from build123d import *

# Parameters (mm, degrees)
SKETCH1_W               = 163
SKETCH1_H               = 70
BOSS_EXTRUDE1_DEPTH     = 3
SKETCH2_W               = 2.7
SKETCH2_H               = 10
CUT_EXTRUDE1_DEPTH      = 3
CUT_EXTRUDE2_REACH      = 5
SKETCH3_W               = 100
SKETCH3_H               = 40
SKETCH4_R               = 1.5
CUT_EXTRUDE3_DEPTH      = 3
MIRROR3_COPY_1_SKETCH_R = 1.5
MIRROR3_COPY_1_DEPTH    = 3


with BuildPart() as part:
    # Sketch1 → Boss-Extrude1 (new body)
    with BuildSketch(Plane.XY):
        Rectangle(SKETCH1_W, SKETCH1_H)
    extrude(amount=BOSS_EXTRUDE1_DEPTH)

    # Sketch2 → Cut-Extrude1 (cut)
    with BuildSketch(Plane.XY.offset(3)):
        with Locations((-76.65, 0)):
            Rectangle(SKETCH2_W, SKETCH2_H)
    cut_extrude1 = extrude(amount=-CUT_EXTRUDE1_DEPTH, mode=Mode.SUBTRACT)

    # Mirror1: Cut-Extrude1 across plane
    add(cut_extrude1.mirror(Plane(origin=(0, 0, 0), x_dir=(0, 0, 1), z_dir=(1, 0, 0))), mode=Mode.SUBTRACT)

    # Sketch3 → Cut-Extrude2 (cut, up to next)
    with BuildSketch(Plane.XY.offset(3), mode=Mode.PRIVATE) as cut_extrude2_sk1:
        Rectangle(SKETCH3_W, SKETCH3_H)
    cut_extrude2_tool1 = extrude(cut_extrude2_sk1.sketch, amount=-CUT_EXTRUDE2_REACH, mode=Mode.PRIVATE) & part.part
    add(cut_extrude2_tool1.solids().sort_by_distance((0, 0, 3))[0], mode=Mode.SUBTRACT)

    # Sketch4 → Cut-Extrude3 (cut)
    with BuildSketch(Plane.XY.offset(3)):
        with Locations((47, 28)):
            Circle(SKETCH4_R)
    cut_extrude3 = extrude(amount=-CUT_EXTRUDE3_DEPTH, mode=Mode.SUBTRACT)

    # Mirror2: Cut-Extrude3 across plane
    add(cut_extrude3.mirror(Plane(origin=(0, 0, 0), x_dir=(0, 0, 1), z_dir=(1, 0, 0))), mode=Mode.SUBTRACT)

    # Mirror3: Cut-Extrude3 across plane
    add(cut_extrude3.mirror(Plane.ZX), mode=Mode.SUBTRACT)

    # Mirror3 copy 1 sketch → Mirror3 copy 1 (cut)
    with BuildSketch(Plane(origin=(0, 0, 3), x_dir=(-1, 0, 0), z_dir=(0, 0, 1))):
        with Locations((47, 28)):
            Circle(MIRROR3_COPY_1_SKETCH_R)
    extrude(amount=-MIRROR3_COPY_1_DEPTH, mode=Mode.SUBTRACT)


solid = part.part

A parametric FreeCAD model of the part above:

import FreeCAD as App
import Part
import Sketcher
Q = App.Units.Quantity

doc = App.newDocument("Part")
params = doc.addObject("Spreadsheet::Sheet", "Params")
for row, (alias, value) in enumerate([
    ("sketch1_width", "163 mm"),
    ("sketch1_height", "70 mm"),
    ("pad1_length", "3 mm"),
    ("sketch2_height", "10 mm"),
    ("sketch2_width", "2.7 mm"),
    ("pocket1_length", "3 mm"),
    ("sketch3_width", "100 mm"),
    ("sketch3_height", "40 mm"),
    ("sketch4_diameter", "3 mm"),
    ("pocket3_length", "3 mm"),
    ("sketch5_diameter", "3 mm"),
    ("pocket4_length", "3 mm"),
], start=1):
    params.set(f"A{row}", alias)
    params.set(f"B{row}", "=" + value)
    params.setAlias(f"B{row}", alias)

body = doc.addObject("PartDesign::Body", "Body")

# Sketch on XY plane
sketch1 = body.newObject("Sketcher::SketchObject", "Sketch")
sketch1.AttachmentSupport = (doc.getObject("XY_Plane"), [""])
sketch1.MapMode = "FlatFace"
sketch1.addGeometry([
    Part.LineSegment(App.Vector(-82, 35, 0), App.Vector(-82, -35, 0)),
    Part.LineSegment(App.Vector(-82, -35, 0), App.Vector(82, -35, 0)),
    Part.LineSegment(App.Vector(82, -35, 0), App.Vector(82, 35, 0)),
    Part.LineSegment(App.Vector(82, 35, 0), App.Vector(-82, 35, 0)),
], False)
sketch1.addConstraint([
    Sketcher.Constraint("Coincident", 0, 2, 1, 1),
    Sketcher.Constraint("Coincident", 1, 2, 2, 1),
    Sketcher.Constraint("Coincident", 2, 2, 3, 1),
    Sketcher.Constraint("Coincident", 3, 2, 0, 1),
    Sketcher.Constraint("Vertical", 0),
    Sketcher.Constraint("Horizontal", 1),
    Sketcher.Constraint("Vertical", 2),
    Sketcher.Constraint("Horizontal", 3),
    Sketcher.Constraint("Symmetric", 0, 2, 2, 2, -1, 1),
    Sketcher.Constraint("DistanceX", 1, 1, 1, 2, Q("163 mm")),
    Sketcher.Constraint("DistanceY", 0, 2, 0, 1, Q("70 mm")),
])
sketch1.setExpression("Constraints[9]", "Params.sketch1_width")
sketch1.setExpression("Constraints[10]", "Params.sketch1_height")
pad1 = body.newObject("PartDesign::Pad", "Pad")
pad1.Profile = sketch1
pad1.setExpression("Length", "Params.pad1_length")

# Sketch on XY plane
sketch2 = body.newObject("Sketcher::SketchObject", "Sketch001")
sketch2.AttachmentSupport = (doc.getObject("XY_Plane"), [""])
sketch2.MapMode = "FlatFace"
sketch2.AttachmentOffset = App.Placement(App.Vector(0, 0, 3), App.Rotation())
sketch2.addGeometry([
    Part.LineSegment(App.Vector(-78, 5, 0), App.Vector(-78, -5, 0)),
    Part.LineSegment(App.Vector(-78, -5, 0), App.Vector(-75.3, -5, 0)),
    Part.LineSegment(App.Vector(-75.3, -5, 0), App.Vector(-75.3, 5, 0)),
    Part.LineSegment(App.Vector(-75.3, 5, 0), App.Vector(-78, 5, 0)),
], False)
sketch2.addConstraint([
    Sketcher.Constraint("Coincident", 0, 2, 1, 1),
    Sketcher.Constraint("Coincident", 1, 2, 2, 1),
    Sketcher.Constraint("Coincident", 2, 2, 3, 1),
    Sketcher.Constraint("Coincident", 3, 2, 0, 1),
    Sketcher.Constraint("Vertical", 0),
    Sketcher.Constraint("Horizontal", 1),
    Sketcher.Constraint("Vertical", 2),
    Sketcher.Constraint("Horizontal", 3),
    Sketcher.Constraint("DistanceY", 0, 2, 0, 1, Q("10 mm")),
    Sketcher.Constraint("DistanceX", 1, 1, 1, 2, Q("2.7 mm")),
    Sketcher.Constraint("DistanceX", 0, 2, -1, 1, Q("78 mm")),
    Sketcher.Constraint("DistanceY", 0, 2, -1, 1, Q("5 mm")),
])
sketch2.setExpression("Constraints[8]", "Params.sketch2_height")
sketch2.setExpression("Constraints[9]", "Params.sketch2_width")
pocket1 = body.newObject("PartDesign::Pocket", "Pocket")
pocket1.Profile = sketch2
pocket1.setExpression("Length", "Params.pocket1_length")
doc.recompute()

mirrored = body.newObject("PartDesign::Mirrored", "Mirrored")
mirrored.Originals = [pocket1]
mirrored.MirrorPlane = (doc.getObject("YZ_Plane"), [""])
body.Tip = mirrored

# Sketch on XY plane
sketch3 = body.newObject("Sketcher::SketchObject", "Sketch002")
sketch3.AttachmentSupport = (doc.getObject("XY_Plane"), [""])
sketch3.MapMode = "FlatFace"
sketch3.AttachmentOffset = App.Placement(App.Vector(0, 0, 3), App.Rotation())
sketch3.addGeometry([
    Part.LineSegment(App.Vector(-50, 20, 0), App.Vector(-50, -20, 0)),
    Part.LineSegment(App.Vector(-50, -20, 0), App.Vector(50, -20, 0)),
    Part.LineSegment(App.Vector(50, -20, 0), App.Vector(50, 20, 0)),
    Part.LineSegment(App.Vector(50, 20, 0), App.Vector(-50, 20, 0)),
], False)
sketch3.addConstraint([
    Sketcher.Constraint("Coincident", 0, 2, 1, 1),
    Sketcher.Constraint("Coincident", 1, 2, 2, 1),
    Sketcher.Constraint("Coincident", 2, 2, 3, 1),
    Sketcher.Constraint("Coincident", 3, 2, 0, 1),
    Sketcher.Constraint("Vertical", 0),
    Sketcher.Constraint("Horizontal", 1),
    Sketcher.Constraint("Vertical", 2),
    Sketcher.Constraint("Horizontal", 3),
    Sketcher.Constraint("Symmetric", 0, 2, 2, 2, -1, 1),
    Sketcher.Constraint("DistanceX", 1, 1, 1, 2, Q("100 mm")),
    Sketcher.Constraint("DistanceY", 0, 2, 0, 1, Q("40 mm")),
])
sketch3.setExpression("Constraints[9]", "Params.sketch3_width")
sketch3.setExpression("Constraints[10]", "Params.sketch3_height")
pocket2 = body.newObject("PartDesign::Pocket", "Pocket001")
pocket2.Profile = sketch3
pocket2.Type = "UpToFirst"

# Sketch on XY plane
sketch4 = body.newObject("Sketcher::SketchObject", "Sketch003")
sketch4.AttachmentSupport = (doc.getObject("XY_Plane"), [""])
sketch4.MapMode = "FlatFace"
sketch4.AttachmentOffset = App.Placement(App.Vector(0, 0, 3), App.Rotation())
sketch4.addGeometry(Part.Circle(App.Vector(47, 28, 0), App.Vector(0, 0, 1), 1.5), False)
sketch4.addConstraint([
    Sketcher.Constraint("Diameter", 0, Q("3 mm")),
    Sketcher.Constraint("DistanceX", -1, 1, 0, 3, Q("47 mm")),
    Sketcher.Constraint("DistanceY", -1, 1, 0, 3, Q("28 mm")),
])
sketch4.setExpression("Constraints[0]", "Params.sketch4_diameter")
pocket3 = body.newObject("PartDesign::Pocket", "Pocket002")
pocket3.Profile = sketch4
pocket3.setExpression("Length", "Params.pocket3_length")
doc.recompute()

mirrored2 = body.newObject("PartDesign::Mirrored", "Mirrored001")
mirrored2.Originals = [pocket3]
mirrored2.MirrorPlane = (doc.getObject("YZ_Plane"), [""])
body.Tip = mirrored2
doc.recompute()

mirrored3 = body.newObject("PartDesign::Mirrored", "Mirrored002")
mirrored3.Originals = [pocket3]
mirrored3.MirrorPlane = (doc.getObject("XZ_Plane"), [""])
body.Tip = mirrored3

# Sketch on XY plane
sketch5 = body.newObject("Sketcher::SketchObject", "Sketch004")
sketch5.AttachmentSupport = (doc.getObject("XY_Plane"), [""])
sketch5.MapMode = "FlatFace"
sketch5.AttachmentOffset = App.Placement(App.Vector(0, 0, 3), App.Rotation())
sketch5.addGeometry(Part.Circle(App.Vector(-47, -28, 0), App.Vector(0, 0, 1), 1.5), False)
sketch5.addConstraint([
    Sketcher.Constraint("Diameter", 0, Q("3 mm")),
    Sketcher.Constraint("DistanceX", 0, 3, -1, 1, Q("47 mm")),
    Sketcher.Constraint("DistanceY", 0, 3, -1, 1, Q("28 mm")),
])
sketch5.setExpression("Constraints[0]", "Params.sketch5_diameter")
pocket4 = body.newObject("PartDesign::Pocket", "Pocket003")
pocket4.Profile = sketch5
pocket4.setExpression("Length", "Params.pocket4_length")

doc.recompute()
